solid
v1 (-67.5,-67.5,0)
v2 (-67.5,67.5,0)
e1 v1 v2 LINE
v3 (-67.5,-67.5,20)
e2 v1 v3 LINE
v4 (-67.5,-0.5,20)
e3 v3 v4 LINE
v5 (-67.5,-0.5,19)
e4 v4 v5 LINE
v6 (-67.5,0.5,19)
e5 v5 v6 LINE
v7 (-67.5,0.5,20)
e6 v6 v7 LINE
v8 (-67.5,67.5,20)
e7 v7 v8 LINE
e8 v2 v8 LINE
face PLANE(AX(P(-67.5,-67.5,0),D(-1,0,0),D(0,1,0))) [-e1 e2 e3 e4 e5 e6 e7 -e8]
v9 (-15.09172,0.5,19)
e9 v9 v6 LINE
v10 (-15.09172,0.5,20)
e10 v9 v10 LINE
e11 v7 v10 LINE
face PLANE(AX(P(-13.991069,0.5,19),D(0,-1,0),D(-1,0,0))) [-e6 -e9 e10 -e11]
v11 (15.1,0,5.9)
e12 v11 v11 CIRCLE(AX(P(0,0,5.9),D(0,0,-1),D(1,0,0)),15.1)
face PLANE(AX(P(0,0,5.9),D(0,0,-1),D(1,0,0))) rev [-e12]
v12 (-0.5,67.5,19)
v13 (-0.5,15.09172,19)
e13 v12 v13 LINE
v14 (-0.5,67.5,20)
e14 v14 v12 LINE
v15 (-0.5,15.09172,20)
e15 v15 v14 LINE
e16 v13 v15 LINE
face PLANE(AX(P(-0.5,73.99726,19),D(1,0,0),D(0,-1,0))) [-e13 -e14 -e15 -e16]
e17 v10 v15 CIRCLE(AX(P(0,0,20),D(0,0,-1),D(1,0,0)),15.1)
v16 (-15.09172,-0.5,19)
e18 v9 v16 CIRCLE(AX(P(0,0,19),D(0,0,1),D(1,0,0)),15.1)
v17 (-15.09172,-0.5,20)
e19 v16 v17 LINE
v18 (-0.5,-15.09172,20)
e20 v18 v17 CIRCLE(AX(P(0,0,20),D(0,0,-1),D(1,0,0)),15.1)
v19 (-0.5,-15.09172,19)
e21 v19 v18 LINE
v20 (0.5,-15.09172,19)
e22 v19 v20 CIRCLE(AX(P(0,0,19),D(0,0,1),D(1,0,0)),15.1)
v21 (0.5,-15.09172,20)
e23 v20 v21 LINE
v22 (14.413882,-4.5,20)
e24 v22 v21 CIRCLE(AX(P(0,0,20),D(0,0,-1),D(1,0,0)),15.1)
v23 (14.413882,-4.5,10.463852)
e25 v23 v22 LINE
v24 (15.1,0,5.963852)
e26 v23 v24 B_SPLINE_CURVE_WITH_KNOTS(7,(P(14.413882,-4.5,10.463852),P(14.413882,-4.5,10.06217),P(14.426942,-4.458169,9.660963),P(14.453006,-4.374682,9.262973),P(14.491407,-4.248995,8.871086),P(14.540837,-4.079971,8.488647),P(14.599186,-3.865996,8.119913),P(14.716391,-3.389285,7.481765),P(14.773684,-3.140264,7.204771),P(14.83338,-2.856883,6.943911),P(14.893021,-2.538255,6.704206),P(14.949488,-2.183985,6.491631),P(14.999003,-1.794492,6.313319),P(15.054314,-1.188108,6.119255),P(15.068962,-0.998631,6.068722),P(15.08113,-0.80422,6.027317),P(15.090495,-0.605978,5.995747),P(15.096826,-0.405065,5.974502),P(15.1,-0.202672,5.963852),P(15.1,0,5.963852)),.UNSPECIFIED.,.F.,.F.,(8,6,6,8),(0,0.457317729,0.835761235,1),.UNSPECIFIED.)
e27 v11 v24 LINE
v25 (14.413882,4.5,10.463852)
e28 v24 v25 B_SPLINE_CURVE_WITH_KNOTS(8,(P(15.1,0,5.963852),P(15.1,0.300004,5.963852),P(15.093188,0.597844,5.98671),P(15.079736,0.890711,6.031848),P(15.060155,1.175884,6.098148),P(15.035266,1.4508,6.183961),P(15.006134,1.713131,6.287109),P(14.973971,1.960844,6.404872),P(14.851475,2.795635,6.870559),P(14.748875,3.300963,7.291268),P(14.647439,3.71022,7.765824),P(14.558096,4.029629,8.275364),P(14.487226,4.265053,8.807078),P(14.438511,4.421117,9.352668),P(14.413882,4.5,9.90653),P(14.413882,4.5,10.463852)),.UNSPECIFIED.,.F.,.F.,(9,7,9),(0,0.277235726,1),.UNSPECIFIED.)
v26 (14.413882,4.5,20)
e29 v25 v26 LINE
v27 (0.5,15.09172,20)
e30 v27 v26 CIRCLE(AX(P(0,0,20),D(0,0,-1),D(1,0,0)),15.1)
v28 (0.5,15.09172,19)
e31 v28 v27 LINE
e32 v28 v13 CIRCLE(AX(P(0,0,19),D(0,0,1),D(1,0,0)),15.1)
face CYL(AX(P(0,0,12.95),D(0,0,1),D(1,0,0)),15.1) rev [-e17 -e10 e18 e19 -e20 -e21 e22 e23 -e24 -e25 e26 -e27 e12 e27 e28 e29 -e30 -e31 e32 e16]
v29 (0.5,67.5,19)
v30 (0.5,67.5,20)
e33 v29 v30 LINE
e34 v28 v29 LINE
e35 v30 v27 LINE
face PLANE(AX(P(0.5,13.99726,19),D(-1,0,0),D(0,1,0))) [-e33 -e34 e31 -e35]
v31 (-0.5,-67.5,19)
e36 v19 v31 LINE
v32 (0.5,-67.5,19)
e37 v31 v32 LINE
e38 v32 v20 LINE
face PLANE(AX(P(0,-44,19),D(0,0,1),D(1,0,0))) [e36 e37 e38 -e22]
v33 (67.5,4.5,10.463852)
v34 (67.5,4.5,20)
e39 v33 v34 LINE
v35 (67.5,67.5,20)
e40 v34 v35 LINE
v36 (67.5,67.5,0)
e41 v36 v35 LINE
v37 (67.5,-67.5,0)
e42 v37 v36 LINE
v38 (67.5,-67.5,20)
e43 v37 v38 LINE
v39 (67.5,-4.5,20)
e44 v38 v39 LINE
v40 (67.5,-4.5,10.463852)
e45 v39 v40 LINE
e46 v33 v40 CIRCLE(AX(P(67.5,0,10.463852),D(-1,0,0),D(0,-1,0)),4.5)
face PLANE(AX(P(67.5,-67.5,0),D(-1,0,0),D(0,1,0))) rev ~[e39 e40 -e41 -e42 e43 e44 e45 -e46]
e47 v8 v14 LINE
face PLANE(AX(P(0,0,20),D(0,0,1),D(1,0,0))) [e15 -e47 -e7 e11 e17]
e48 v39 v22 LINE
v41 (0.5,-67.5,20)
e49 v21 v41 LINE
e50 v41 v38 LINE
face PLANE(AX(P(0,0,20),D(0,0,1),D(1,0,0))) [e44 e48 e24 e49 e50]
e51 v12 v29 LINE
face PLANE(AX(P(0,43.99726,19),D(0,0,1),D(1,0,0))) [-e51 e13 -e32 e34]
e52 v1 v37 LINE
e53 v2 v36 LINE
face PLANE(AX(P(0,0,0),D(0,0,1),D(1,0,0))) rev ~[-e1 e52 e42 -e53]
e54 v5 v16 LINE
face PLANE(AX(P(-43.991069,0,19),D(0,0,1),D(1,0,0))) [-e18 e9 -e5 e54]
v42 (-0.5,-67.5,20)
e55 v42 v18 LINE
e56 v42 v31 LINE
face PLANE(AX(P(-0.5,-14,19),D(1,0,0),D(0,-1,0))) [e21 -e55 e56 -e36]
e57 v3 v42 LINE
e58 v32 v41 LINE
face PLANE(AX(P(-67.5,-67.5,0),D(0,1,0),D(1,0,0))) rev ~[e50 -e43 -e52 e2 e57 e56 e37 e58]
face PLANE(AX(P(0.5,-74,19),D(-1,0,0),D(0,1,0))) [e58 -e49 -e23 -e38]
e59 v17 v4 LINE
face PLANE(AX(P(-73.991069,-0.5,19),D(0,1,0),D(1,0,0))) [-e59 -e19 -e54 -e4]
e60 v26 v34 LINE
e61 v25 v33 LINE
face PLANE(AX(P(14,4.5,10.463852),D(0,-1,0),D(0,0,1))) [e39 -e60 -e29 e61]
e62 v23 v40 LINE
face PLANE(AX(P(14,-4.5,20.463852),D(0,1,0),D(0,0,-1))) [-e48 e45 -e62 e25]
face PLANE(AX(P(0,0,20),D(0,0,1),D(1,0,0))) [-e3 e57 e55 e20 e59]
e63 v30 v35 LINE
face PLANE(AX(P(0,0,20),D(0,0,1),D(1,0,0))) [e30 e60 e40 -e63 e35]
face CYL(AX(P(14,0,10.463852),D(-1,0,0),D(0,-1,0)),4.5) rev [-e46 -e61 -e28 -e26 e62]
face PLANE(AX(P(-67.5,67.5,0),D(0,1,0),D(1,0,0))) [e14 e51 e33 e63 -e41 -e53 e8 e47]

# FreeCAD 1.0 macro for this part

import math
import FreeCAD as App
import Part
import Sketcher


def add_polygon(sketch, points):
    """Adds a closed chain of lines whose ends are joined by coincident constraints."""
    first, n = sketch.GeometryCount, len(points)
    for a, b in zip(points, points[1:] + points[:1]):
        sketch.addGeometry(Part.LineSegment(App.Vector(*a, 0), App.Vector(*b, 0)), False)
    for i in range(n):
        sketch.addConstraint(Sketcher.Constraint("Coincident", first + i, 2, first + (i + 1) % n, 1))

doc = App.newDocument("Part")
body = doc.addObject("PartDesign::Body", "Body")

sketch1 = body.newObject("Sketcher::SketchObject", "Sketch")
sketch1.AttachmentSupport = (doc.getObject("XY_Plane"), [""])
sketch1.MapMode = "FlatFace"
add_polygon(sketch1, [(-68, 68), (-68, -68), (68, -68), (68, 68)])
sketch1.addConstraint([
    Sketcher.Constraint("Vertical", 0),
    Sketcher.Constraint("Horizontal", 1),
    Sketcher.Constraint("Vertical", 2),
    Sketcher.Constraint("Horizontal", 3),
    Sketcher.Constraint("Symmetric", 0, 2, 2, 2, -1, 1),
    Sketcher.Constraint("Equal", 3, 0),
    Sketcher.Constraint("DistanceX", 1, 1, 1, 2, 135.0),
])
pad1 = body.newObject("PartDesign::Pad", "Pad")
pad1.Profile = sketch1
pad1.Length = 20

sketch2 = body.newObject("Sketcher::SketchObject", "Sketch001")
sketch2.AttachmentSupport = (doc.getObject("XZ_Plane"), [""])
sketch2.MapMode = "FlatFace"
add_polygon(sketch2, [(0, 20), (0, 6), (15, 6), (15, 20)])
sketch2.addConstraint([
    Sketcher.Constraint("Vertical", 0),
    Sketcher.Constraint("Horizontal", 1),
    Sketcher.Constraint("Vertical", 2),
    Sketcher.Constraint("Horizontal", 3),
    Sketcher.Constraint("PointOnObject", 0, 2, -2),
    Sketcher.Constraint("DistanceX", 1, 1, 1, 2, 15.1),
    Sketcher.Constraint("DistanceY", 0, 2, 0, 1, 14.1),
    Sketcher.Constraint("DistanceY", -1, 1, 2, 2, 20.0),
])
groove = body.newObject("PartDesign::Groove", "Groove")
groove.Profile = sketch2
groove.ReferenceAxis = (sketch2, ["V_Axis"])
groove.Angle = 360

sketch3 = body.newObject("Sketcher::SketchObject", "Sketch002")
sketch3.AttachmentSupport = (doc.getObject("YZ_Plane"), [""])
sketch3.MapMode = "FlatFace"
sketch3.AttachmentOffset = App.Placement(App.Vector(0, 0, 14), App.Rotation())
sketch3.addGeometry([
    Part.LineSegment(App.Vector(4.5, 20.5, 0), App.Vector(-4.5, 20.5, 0)),
    Part.LineSegment(App.Vector(-4.5, 20.5, 0), App.Vector(-4.5, 10.5, 0)),
    Part.ArcOfCircle(Part.Circle(App.Vector(0, 10.5, 0), App.Vector(0, 0, 1), 4.5), math.radians(180), math.radians(360)),
    Part.LineSegment(App.Vector(4.5, 10.5, 0), App.Vector(4.5, 20.5, 0)),
], False)
sketch3.addConstraint([
    Sketcher.Constraint("Coincident", 0, 2, 1, 1),
    Sketcher.Constraint("Tangent", 1, 2, 2, 1),
    Sketcher.Constraint("Tangent", 2, 2, 3, 1),
    Sketcher.Constraint("Coincident", 3, 2, 0, 1),
    Sketcher.Constraint("Horizontal", 0),
    Sketcher.Constraint("Vertical", 1),
    Sketcher.Constraint("Vertical", 3),
    Sketcher.Constraint("PointOnObject", 2, 3, -2),
    Sketcher.Constraint("Radius", 2, 4.5),
    Sketcher.Constraint("DistanceY", 1, 2, 1, 1, 10.0),
    Sketcher.Constraint("DistanceY", -1, 1, 2, 3, 10.463852),
])
pocket1 = body.newObject("PartDesign::Pocket", "Pocket")
pocket1.Profile = sketch3
pocket1.Length = 136
pocket1.Reversed = True

sketch4 = body.newObject("Sketcher::SketchObject", "Sketch003")
sketch4.AttachmentSupport = (doc.getObject("XY_Plane"), [""])
sketch4.MapMode = "FlatFace"
sketch4.AttachmentOffset = App.Placement(App.Vector(0, 0, 19), App.Rotation())
add_polygon(sketch4, [(14, 0.5), (14, -0.5), (74, -0.5), (74, 0.5)])
add_polygon(sketch4, [(0.5, -14), (-0.5, -14), (-0.5, -74), (0.5, -74)])
add_polygon(sketch4, [(-14, -0.5), (-14, 0.5), (-74, 0.5), (-74, -0.5)])
add_polygon(sketch4, [(-0.5, 74), (-0.5, 14), (0.5, 14), (0.5, 74)])
sketch4.addConstraint([
    Sketcher.Constraint("Vertical", 0),
    Sketcher.Constraint("Horizontal", 1),
    Sketcher.Constraint("Vertical", 2),
    Sketcher.Constraint("Horizontal", 3),
    Sketcher.Constraint("Horizontal", 4),
    Sketcher.Constraint("Vertical", 5),
    Sketcher.Constraint("Horizontal", 6),
    Sketcher.Constraint("Vertical", 7),
    Sketcher.Constraint("Vertical", 8),
    Sketcher.Constraint("Horizontal", 9),
    Sketcher.Constraint("Vertical", 10),
    Sketcher.Constraint("Horizontal", 11),
    Sketcher.Constraint("Vertical", 12),
    Sketcher.Constraint("Horizontal", 13),
    Sketcher.Constraint("Vertical", 14),
    Sketcher.Constraint("Horizontal", 15),
    Sketcher.Constraint("Horizontal", 3, 2, 8, 2),
    Sketcher.Constraint("Horizontal", 1, 2, 10, 2),
    Sketcher.Constraint("Vertical", 5, 2, 12, 2),
    Sketcher.Constraint("Vertical", 7, 2, 13, 2),
    Sketcher.Constraint("Equal", 3, 9),
    Sketcher.Constraint("Equal", 15, 0),
    Sketcher.Constraint("Equal", 11, 5),
    Sketcher.Constraint("Equal", 7, 12),
    Sketcher.Constraint("DistanceX", 1, 1, 1, 2, 60.0),
    Sketcher.Constraint("DistanceX", 4, 2, 4, 1, 1.0),
    Sketcher.Constraint("DistanceX", -1, 1, 0, 2, 14.0),
    Sketcher.Constraint("DistanceY", 4, 2, -1, 1, 14.0),
    Sketcher.Constraint("DistanceY", 0, 2, -1, 1, 0.5),
    Sketcher.Constraint("DistanceX", 4, 2, -1, 1, 0.5),
    Sketcher.Constraint("DistanceX", 8, 2, -1, 1, 13.991069),
    Sketcher.Constraint("DistanceY", -1, 1, 12, 2, 13.99726),
])
pocket2 = body.newObject("PartDesign::Pocket", "Pocket001")
pocket2.Profile = sketch4
pocket2.Length = 6
pocket2.Reversed = True

doc.recompute()
